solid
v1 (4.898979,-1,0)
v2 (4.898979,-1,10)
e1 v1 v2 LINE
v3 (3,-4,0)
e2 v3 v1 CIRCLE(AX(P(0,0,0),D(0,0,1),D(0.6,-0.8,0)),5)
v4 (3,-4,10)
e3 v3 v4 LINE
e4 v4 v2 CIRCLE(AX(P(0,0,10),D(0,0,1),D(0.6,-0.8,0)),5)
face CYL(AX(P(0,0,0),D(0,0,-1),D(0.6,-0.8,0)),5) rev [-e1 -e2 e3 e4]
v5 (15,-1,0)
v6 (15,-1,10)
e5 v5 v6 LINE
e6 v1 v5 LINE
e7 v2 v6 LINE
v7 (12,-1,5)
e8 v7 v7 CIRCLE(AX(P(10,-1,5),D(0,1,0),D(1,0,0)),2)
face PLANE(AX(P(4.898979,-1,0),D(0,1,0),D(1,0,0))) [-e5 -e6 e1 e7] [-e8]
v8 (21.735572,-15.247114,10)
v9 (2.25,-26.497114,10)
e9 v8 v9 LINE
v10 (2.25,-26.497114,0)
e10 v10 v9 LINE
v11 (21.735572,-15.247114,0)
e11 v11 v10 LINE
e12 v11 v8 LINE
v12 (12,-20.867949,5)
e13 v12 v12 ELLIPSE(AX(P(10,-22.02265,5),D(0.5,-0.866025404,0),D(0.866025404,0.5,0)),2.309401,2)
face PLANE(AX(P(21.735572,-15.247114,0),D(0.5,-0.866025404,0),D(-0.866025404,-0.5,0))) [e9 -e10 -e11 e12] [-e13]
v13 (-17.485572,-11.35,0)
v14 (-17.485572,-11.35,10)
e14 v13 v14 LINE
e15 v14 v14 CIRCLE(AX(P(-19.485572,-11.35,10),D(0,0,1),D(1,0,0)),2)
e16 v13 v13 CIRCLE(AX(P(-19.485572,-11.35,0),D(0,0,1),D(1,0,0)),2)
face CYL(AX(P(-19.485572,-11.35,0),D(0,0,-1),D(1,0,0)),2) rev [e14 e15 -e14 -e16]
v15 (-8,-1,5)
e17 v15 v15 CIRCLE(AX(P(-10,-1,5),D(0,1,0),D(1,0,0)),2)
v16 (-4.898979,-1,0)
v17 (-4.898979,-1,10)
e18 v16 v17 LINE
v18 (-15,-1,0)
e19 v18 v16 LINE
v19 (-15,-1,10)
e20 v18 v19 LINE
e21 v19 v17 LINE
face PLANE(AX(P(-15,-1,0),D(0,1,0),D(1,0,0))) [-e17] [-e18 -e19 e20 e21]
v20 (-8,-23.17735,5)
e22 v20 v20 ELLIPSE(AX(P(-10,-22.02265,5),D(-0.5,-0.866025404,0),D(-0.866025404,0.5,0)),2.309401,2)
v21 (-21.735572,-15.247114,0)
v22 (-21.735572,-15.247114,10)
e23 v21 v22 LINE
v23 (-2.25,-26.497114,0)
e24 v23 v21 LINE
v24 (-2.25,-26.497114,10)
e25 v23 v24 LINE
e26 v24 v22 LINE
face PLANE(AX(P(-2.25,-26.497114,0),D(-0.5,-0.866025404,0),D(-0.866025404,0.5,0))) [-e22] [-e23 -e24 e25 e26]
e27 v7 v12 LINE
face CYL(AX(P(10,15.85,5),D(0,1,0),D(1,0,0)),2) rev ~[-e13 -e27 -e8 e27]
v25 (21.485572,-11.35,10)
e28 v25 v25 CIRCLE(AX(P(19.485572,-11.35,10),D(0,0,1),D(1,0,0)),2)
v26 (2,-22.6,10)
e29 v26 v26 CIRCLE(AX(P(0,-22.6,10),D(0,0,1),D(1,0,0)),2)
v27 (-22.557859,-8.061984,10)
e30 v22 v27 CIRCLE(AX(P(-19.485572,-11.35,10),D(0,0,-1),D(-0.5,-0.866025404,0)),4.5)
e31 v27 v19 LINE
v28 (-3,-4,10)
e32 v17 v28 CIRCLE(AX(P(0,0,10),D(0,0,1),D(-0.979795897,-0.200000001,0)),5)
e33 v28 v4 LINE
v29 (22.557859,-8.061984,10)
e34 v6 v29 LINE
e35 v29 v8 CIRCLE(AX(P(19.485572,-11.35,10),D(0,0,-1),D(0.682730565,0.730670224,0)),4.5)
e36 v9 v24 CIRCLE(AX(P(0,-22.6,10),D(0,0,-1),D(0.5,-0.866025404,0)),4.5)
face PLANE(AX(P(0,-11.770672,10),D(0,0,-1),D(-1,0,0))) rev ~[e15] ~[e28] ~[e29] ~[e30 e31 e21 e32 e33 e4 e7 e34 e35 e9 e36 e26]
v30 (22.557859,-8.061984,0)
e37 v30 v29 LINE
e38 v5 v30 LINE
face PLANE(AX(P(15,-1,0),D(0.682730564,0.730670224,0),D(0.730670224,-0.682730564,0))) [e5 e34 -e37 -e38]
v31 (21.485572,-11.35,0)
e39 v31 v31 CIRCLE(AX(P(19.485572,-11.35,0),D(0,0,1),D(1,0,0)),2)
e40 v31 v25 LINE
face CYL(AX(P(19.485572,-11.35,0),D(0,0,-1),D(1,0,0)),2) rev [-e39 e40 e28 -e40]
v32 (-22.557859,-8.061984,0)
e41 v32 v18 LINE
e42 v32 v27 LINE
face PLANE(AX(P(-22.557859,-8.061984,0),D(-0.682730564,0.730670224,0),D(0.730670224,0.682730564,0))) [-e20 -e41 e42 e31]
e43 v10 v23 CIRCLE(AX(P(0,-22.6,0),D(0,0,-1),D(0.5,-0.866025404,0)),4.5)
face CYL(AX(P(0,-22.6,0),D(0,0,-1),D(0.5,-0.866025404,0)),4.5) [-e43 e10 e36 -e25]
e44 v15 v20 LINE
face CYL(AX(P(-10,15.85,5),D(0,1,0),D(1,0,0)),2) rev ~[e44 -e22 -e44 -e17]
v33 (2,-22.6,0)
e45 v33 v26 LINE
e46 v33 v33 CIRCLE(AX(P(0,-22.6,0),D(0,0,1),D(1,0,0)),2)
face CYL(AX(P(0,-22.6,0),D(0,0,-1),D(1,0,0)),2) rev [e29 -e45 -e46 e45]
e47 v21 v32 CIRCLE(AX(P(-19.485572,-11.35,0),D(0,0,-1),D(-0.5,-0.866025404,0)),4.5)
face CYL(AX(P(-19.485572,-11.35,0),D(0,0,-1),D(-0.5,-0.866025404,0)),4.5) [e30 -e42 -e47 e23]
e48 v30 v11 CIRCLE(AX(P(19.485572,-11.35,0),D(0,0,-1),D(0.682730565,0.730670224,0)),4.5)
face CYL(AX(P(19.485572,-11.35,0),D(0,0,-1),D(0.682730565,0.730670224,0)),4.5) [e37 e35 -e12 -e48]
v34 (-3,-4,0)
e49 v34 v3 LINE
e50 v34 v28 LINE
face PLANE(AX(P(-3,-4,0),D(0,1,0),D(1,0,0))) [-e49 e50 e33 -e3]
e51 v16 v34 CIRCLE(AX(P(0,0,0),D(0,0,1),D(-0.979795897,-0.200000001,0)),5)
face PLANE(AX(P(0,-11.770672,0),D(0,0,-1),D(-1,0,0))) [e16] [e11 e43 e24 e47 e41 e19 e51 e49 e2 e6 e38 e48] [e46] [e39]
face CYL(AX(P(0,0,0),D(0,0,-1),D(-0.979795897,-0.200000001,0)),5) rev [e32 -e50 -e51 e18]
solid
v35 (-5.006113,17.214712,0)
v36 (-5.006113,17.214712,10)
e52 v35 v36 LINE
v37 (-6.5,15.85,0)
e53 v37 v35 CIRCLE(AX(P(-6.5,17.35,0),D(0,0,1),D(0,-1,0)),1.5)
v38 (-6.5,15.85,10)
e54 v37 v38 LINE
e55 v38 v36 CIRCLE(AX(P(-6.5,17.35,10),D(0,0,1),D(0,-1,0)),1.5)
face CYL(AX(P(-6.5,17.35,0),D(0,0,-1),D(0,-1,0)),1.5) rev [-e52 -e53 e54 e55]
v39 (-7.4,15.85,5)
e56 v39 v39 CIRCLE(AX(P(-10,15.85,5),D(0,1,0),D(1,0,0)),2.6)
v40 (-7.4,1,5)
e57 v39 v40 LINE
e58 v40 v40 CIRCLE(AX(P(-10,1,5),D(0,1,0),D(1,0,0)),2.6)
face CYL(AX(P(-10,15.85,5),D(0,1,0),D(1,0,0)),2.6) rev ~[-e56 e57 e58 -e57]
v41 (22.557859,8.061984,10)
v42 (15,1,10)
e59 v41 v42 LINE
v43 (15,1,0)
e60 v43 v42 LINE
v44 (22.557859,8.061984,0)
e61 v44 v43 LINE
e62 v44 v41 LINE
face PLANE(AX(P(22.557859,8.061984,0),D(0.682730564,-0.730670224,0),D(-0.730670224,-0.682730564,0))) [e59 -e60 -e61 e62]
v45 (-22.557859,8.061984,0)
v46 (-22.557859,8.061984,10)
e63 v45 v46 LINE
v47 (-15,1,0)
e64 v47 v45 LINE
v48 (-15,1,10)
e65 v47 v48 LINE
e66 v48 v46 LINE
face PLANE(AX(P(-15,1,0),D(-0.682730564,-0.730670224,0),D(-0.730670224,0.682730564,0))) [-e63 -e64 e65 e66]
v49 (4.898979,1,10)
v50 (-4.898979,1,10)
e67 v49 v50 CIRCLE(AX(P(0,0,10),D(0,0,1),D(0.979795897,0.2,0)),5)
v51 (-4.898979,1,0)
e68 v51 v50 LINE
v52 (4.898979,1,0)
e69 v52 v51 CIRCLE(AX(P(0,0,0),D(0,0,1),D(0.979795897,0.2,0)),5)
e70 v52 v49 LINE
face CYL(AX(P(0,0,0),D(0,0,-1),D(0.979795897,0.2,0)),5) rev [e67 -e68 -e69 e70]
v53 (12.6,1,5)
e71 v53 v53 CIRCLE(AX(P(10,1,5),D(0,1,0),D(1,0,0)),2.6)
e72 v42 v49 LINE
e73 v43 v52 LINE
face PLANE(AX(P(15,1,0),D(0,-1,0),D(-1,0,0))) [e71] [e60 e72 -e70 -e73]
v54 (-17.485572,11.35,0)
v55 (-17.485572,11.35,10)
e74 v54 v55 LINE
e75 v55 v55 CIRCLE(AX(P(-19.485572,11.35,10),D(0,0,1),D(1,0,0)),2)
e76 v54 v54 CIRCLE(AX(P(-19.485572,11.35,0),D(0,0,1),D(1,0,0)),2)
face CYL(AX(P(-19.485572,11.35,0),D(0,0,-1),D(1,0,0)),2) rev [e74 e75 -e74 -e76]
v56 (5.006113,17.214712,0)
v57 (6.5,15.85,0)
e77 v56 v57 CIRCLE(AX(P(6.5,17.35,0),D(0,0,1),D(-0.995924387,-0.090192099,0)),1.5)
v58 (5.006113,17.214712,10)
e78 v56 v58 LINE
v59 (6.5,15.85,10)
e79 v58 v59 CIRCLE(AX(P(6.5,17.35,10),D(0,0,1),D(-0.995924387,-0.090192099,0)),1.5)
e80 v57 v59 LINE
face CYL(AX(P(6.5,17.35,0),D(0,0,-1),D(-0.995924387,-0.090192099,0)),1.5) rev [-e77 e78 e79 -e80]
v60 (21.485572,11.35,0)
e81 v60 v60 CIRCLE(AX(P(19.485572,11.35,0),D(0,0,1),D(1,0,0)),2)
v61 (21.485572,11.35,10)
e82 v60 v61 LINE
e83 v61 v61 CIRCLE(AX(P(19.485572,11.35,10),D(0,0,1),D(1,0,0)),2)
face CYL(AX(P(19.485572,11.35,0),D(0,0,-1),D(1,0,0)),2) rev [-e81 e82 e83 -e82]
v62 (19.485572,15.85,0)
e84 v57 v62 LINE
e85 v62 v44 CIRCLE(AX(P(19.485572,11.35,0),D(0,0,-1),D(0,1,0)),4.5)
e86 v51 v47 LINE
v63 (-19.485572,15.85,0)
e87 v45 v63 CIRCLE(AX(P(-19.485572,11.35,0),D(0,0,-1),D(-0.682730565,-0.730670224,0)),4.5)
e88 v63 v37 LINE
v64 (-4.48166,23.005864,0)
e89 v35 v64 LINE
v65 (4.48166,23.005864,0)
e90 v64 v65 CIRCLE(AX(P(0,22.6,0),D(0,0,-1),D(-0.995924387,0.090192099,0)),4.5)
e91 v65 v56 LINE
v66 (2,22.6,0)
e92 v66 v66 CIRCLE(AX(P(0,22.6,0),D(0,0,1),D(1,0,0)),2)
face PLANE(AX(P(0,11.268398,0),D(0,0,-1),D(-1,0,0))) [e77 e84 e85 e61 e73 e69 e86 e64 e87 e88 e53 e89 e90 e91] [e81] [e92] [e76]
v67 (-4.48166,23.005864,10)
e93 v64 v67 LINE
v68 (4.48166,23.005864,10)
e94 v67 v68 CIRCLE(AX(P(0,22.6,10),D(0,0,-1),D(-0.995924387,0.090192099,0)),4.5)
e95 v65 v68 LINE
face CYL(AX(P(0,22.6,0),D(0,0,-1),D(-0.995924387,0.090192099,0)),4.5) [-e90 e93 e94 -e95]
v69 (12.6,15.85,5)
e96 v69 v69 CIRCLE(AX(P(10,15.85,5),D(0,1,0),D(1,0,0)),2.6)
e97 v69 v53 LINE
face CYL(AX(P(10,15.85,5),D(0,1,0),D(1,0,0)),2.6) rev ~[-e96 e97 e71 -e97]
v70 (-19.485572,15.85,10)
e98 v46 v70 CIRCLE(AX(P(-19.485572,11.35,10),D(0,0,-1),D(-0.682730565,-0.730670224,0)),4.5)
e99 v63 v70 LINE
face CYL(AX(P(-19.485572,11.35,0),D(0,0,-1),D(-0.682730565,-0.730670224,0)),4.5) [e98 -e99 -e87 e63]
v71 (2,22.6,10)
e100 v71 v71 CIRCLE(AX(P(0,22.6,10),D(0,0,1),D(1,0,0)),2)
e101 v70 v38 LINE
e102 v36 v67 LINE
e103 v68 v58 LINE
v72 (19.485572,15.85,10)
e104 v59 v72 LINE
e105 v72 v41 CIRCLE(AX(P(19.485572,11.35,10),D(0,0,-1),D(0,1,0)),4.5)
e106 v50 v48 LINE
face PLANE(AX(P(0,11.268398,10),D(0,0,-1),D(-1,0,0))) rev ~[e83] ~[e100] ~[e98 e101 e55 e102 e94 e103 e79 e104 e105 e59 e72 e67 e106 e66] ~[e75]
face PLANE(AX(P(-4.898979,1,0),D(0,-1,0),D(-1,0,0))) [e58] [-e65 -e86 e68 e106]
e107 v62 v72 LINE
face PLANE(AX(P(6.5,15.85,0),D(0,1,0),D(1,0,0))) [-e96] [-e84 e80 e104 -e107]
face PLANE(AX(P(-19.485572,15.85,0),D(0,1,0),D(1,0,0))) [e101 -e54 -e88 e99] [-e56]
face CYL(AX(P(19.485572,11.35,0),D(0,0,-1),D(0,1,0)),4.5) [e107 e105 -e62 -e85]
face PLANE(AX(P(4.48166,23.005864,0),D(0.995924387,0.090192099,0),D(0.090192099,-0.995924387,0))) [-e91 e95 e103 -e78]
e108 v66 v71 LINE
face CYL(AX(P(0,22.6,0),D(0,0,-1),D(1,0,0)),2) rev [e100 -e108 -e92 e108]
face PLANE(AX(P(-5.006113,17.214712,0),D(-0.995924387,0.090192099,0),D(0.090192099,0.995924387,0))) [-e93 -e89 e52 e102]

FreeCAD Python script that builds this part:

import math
import FreeCAD as App
import Part
import Sketcher
Q = App.Units.Quantity

doc = App.newDocument("Part")
body = doc.addObject("PartDesign::Body", "Body")

# Sketch on XY plane
sketch1 = body.newObject("Sketcher::SketchObject", "Sketch")
sketch1.AttachmentSupport = (doc.getObject("XY_Plane"), [""])
sketch1.MapMode = "FlatFace"
sketch1.addGeometry(Part.LineSegment(App.Vector(3, -4, 0), App.Vector(-3, -4, 0)), False)
sketch1.addGeometry(Part.ArcOfCircle(Part.Circle(App.Vector(0, 0, 0), App.Vector(0, 0, 1), 5), math.radians(-168), math.radians(-127)), False)
sketch1.addGeometry(Part.LineSegment(App.Vector(-4.9, -1, 0), App.Vector(-15, -1, 0)), False)
sketch1.addGeometry(Part.LineSegment(App.Vector(-15, -1, 0), App.Vector(-22.6, -8.1, 0)), False)
sketch1.addGeometry(Part.ArcOfCircle(Part.Circle(App.Vector(-19.5, -11.3, 0), App.Vector(0, 0, 1), 4.5), math.radians(133), math.radians(240)), False)
sketch1.addGeometry(Part.LineSegment(App.Vector(-21.7, -15.2, 0), App.Vector(-2.2, -26.5, 0)), False)
sketch1.addGeometry(Part.ArcOfCircle(Part.Circle(App.Vector(0, -22.6, 0), App.Vector(0, 0, 1), 4.5), math.radians(-120), math.radians(-60)), False)
sketch1.addGeometry(Part.LineSegment(App.Vector(2.2, -26.5, 0), App.Vector(21.7, -15.2, 0)), False)
sketch1.addGeometry(Part.ArcOfCircle(Part.Circle(App.Vector(19.5, -11.3, 0), App.Vector(0, 0, 1), 4.5), math.radians(-60), math.radians(47)), False)
sketch1.addGeometry(Part.LineSegment(App.Vector(22.6, -8.1, 0), App.Vector(15, -1, 0)), False)
sketch1.addGeometry(Part.LineSegment(App.Vector(15, -1, 0), App.Vector(4.9, -1, 0)), False)
sketch1.addGeometry(Part.ArcOfCircle(Part.Circle(App.Vector(0, 0, 0), App.Vector(0, 0, 1), 5), math.radians(-53), math.radians(-12)), False)
sketch1.addGeometry(Part.Circle(App.Vector(0, -22.6, 0), App.Vector(0, 0, 1), 2), False)
sketch1.addGeometry(Part.Circle(App.Vector(19.5, -11.3, 0), App.Vector(0, 0, 1), 2), False)
sketch1.addGeometry(Part.Circle(App.Vector(-19.5, -11.3, 0), App.Vector(0, 0, 1), 2), False)
sketch1.addConstraint(Sketcher.Constraint("Coincident", 0, 2, 1, 2))
sketch1.addConstraint(Sketcher.Constraint("Coincident", 1, 1, 2, 1))
sketch1.addConstraint(Sketcher.Constraint("Coincident", 2, 2, 3, 1))
sketch1.addConstraint(Sketcher.Constraint("Tangent", 3, 2, 4, 1))
sketch1.addConstraint(Sketcher.Constraint("Tangent", 4, 2, 5, 1))
sketch1.addConstraint(Sketcher.Constraint("Tangent", 5, 2, 6, 1))
sketch1.addConstraint(Sketcher.Constraint("Tangent", 6, 2, 7, 1))
sketch1.addConstraint(Sketcher.Constraint("Tangent", 7, 2, 8, 1))
sketch1.addConstraint(Sketcher.Constraint("Tangent", 8, 2, 9, 1))
sketch1.addConstraint(Sketcher.Constraint("Coincident", 9, 2, 10, 1))
sketch1.addConstraint(Sketcher.Constraint("Coincident", 10, 2, 11, 2))
sketch1.addConstraint(Sketcher.Constraint("Coincident", 11, 1, 0, 1))
sketch1.addConstraint(Sketcher.Constraint("Horizontal", 0))
sketch1.addConstraint(Sketcher.Constraint("Horizontal", 2))
sketch1.addConstraint(Sketcher.Constraint("Horizontal", 10))
sketch1.addConstraint(Sketcher.Constraint("Coincident", 1, 3, -1, 1))
sketch1.addConstraint(Sketcher.Constraint("Coincident", 11, 3, -1, 1))
sketch1.addConstraint(Sketcher.Constraint("Coincident", 12, 3, 6, 3))
sketch1.addConstraint(Sketcher.Constraint("Coincident", 13, 3, 8, 3))
sketch1.addConstraint(Sketcher.Constraint("Coincident", 14, 3, 4, 3))
sketch1.addConstraint(Sketcher.Constraint("Equal", 4, 6))
sketch1.addConstraint(Sketcher.Constraint("Equal", 6, 8))
sketch1.addConstraint(Sketcher.Constraint("Equal", 1, 11))
sketch1.addConstraint(Sketcher.Constraint("Equal", 12, 13))
sketch1.addConstraint(Sketcher.Constraint("Equal", 13, 14))
sketch1.addConstraint(Sketcher.Constraint("Symmetric", 4, 3, 8, 3, -2))
sketch1.addConstraint(Sketcher.Constraint("Symmetric", 2, 2, 9, 2, -2))
sketch1.addConstraint(Sketcher.Constraint("PointOnObject", 6, 3, -2))
sketch1.addConstraint(Sketcher.Constraint("Diameter", 12, 4.0))
sketch1.addConstraint(Sketcher.Constraint("Radius", 1, 5.0))
sketch1.addConstraint(Sketcher.Constraint("Radius", 4, 4.5))
sketch1.addConstraint(Sketcher.Constraint("DistanceX", 0, 2, 0, 1, 6.0))
sketch1.addConstraint(Sketcher.Constraint("Angle", 5, Q("-30 deg")))
sketch1.addConstraint(Sketcher.Constraint("DistanceY", 1, 1, -1, 1, 1.0))
sketch1.addConstraint(Sketcher.Constraint("DistanceX", 2, 2, -1, 1, 15.0))
sketch1.addConstraint(Sketcher.Constraint("Distance", 5, 22.5))
sketch1.addConstraint(Sketcher.Constraint("DistanceY", 6, 3, -1, 1, 22.6))
pad1 = body.newObject("PartDesign::Pad", "Pad")
pad1.Profile = sketch1
pad1.Length = 10

# Sketch on XZ plane
sketch2 = body.newObject("Sketcher::SketchObject", "Sketch001")
sketch2.AttachmentSupport = (doc.getObject("XZ_Plane"), [""])
sketch2.MapMode = "FlatFace"
sketch2.AttachmentOffset = App.Placement(App.Vector(0, 0, -15.85), App.Rotation())
sketch2.addGeometry(Part.Circle(App.Vector(-10, 5, 0), App.Vector(0, 0, 1), 2), False)
sketch2.addGeometry(Part.Circle(App.Vector(10, 5, 0), App.Vector(0, 0, 1), 2), False)
sketch2.addConstraint(Sketcher.Constraint("Equal", 0, 1))
sketch2.addConstraint(Sketcher.Constraint("Symmetric", 0, 3, 1, 3, -2))
sketch2.addConstraint(Sketcher.Constraint("Diameter", 0, 4.0))
sketch2.addConstraint(Sketcher.Constraint("DistanceX", 0, 3, -1, 1, 10.0))
sketch2.addConstraint(Sketcher.Constraint("DistanceY", -1, 1, 0, 3, 5.0))
pocket1 = body.newObject("PartDesign::Pocket", "Pocket")
pocket1.Profile = sketch2
pocket1.Type = "ThroughAll"
pocket1.Reversed = True
body2 = doc.addObject("PartDesign::Body", "Body001")

# Sketch on XY plane
sketch3 = body2.newObject("Sketcher::SketchObject", "Sketch002")
sketch3.AttachmentSupport = (doc.getObject("XY_Plane001"), [""])
sketch3.MapMode = "FlatFace"
sketch3.addGeometry(Part.LineSegment(App.Vector(-22.6, 8.1, 0), App.Vector(-15, 1, 0)), False)
sketch3.addGeometry(Part.LineSegment(App.Vector(-15, 1, 0), App.Vector(-4.9, 1, 0)), False)
sketch3.addGeometry(Part.ArcOfCircle(Part.Circle(App.Vector(0, 0, 0), App.Vector(0, 0, 1), 5), math.radians(12), math.radians(168)), False)
sketch3.addGeometry(Part.LineSegment(App.Vector(4.9, 1, 0), App.Vector(15, 1, 0)), False)
sketch3.addGeometry(Part.LineSegment(App.Vector(15, 1, 0), App.Vector(22.6, 8.1, 0)), False)
sketch3.addGeometry(Part.ArcOfCircle(Part.Circle(App.Vector(19.5, 11.3, 0), App.Vector(0, 0, 1), 4.5), math.radians(-47), math.radians(90)), False)
sketch3.addGeometry(Part.LineSegment(App.Vector(19.5, 15.8, 0), App.Vector(6.5, 15.8, 0)), False)
sketch3.addGeometry(Part.ArcOfCircle(Part.Circle(App.Vector(6.5, 17.4, 0), App.Vector(0, 0, 1), 1.5), math.radians(-175), math.radians(-90)), False)
sketch3.addGeometry(Part.LineSegment(App.Vector(5, 17.2, 0), App.Vector(4.5, 23, 0)), False)
sketch3.addGeometry(Part.ArcOfCircle(Part.Circle(App.Vector(0, 22.6, 0), App.Vector(0, 0, 1), 4.5), math.radians(5), math.radians(175)), False)
sketch3.addGeometry(Part.LineSegment(App.Vector(-4.5, 23, 0), App.Vector(-5, 17.2, 0)), False)
sketch3.addGeometry(Part.ArcOfCircle(Part.Circle(App.Vector(-6.5, 17.4, 0), App.Vector(0, 0, 1), 1.5), math.radians(-90), math.radians(-5)), False)
sketch3.addGeometry(Part.LineSegment(App.Vector(-6.5, 15.8, 0), App.Vector(-19.5, 15.8, 0)), False)
sketch3.addGeometry(Part.ArcOfCircle(Part.Circle(App.Vector(-19.5, 11.3, 0), App.Vector(0, 0, 1), 4.5), math.radians(90), math.radians(227)), False)
sketch3.addGeometry(Part.Circle(App.Vector(19.5, 11.3, 0), App.Vector(0, 0, 1), 2), False)
sketch3.addGeometry(Part.Circle(App.Vector(-19.5, 11.3, 0), App.Vector(0, 0, 1), 2), False)
sketch3.addGeometry(Part.Circle(App.Vector(0, 22.6, 0), App.Vector(0, 0, 1), 2), False)
sketch3.addConstraint(Sketcher.Constraint("Coincident", 0, 2, 1, 1))
sketch3.addConstraint(Sketcher.Constraint("Coincident", 1, 2, 2, 2))
sketch3.addConstraint(Sketcher.Constraint("Coincident", 2, 1, 3, 1))
sketch3.addConstraint(Sketcher.Constraint("Coincident", 3, 2, 4, 1))
sketch3.addConstraint(Sketcher.Constraint("Tangent", 4, 2, 5, 1))
sketch3.addConstraint(Sketcher.Constraint("Tangent", 5, 2, 6, 1))
sketch3.addConstraint(Sketcher.Constraint("Tangent", 6, 2, 7, 2))
sketch3.addConstraint(Sketcher.Constraint("Tangent", 7, 1, 8, 1))
sketch3.addConstraint(Sketcher.Constraint("Tangent", 8, 2, 9, 1))
sketch3.addConstraint(Sketcher.Constraint("Tangent", 9, 2, 10, 1))
sketch3.addConstraint(Sketcher.Constraint("Tangent", 10, 2, 11, 2))
sketch3.addConstraint(Sketcher.Constraint("Tangent", 11, 1, 12, 1))
sketch3.addConstraint(Sketcher.Constraint("Tangent", 12, 2, 13, 1))
sketch3.addConstraint(Sketcher.Constraint("Tangent", 13, 2, 0, 1))
sketch3.addConstraint(Sketcher.Constraint("Horizontal", 1))
sketch3.addConstraint(Sketcher.Constraint("Horizontal", 3))
sketch3.addConstraint(Sketcher.Constraint("Horizontal", 6))
sketch3.addConstraint(Sketcher.Constraint("Horizontal", 12))
sketch3.addConstraint(Sketcher.Constraint("Coincident", 2, 3, -1, 1))
sketch3.addConstraint(Sketcher.Constraint("Coincident", 14, 3, 5, 3))
sketch3.addConstraint(Sketcher.Constraint("Coincident", 15, 3, 13, 3))
sketch3.addConstraint(Sketcher.Constraint("Coincident", 16, 3, 9, 3))
sketch3.addConstraint(Sketcher.Constraint("Equal", 5, 9))
sketch3.addConstraint(Sketcher.Constraint("Equal", 7, 11))
sketch3.addConstraint(Sketcher.Constraint("Equal", 9, 13))
sketch3.addConstraint(Sketcher.Constraint("Equal", 14, 15))
sketch3.addConstraint(Sketcher.Constraint("Equal", 15, 16))
sketch3.addConstraint(Sketcher.Constraint("Symmetric", 7, 3, 11, 3, -2))
sketch3.addConstraint(Sketcher.Constraint("Symmetric", 0, 2, 3, 2, -2))
sketch3.addConstraint(Sketcher.Constraint("PointOnObject", 9, 3, -2))
sketch3.addConstraint(Sketcher.Constraint("Horizontal", 4, 2, 13, 2))
sketch3.addConstraint(Sketcher.Constraint("Diameter", 14, 4.0))
sketch3.addConstraint(Sketcher.Constraint("Radius", 2, 5.0))
sketch3.addConstraint(Sketcher.Constraint("Radius", 5, 4.5))
sketch3.addConstraint(Sketcher.Constraint("Radius", 7, 1.5))
sketch3.addConstraint(Sketcher.Constraint("DistanceX", 0, 2, -1, 1, 15.0))
sketch3.addConstraint(Sketcher.Constraint("DistanceY", -1, 1, 0, 2, 1.0))
sketch3.addConstraint(Sketcher.Constraint("DistanceX", 11, 3, 7, 3, 13.0))
sketch3.addConstraint(Sketcher.Constraint("DistanceY", -1, 1, 9, 3, 22.6))
sketch3.addConstraint(Sketcher.Constraint("DistanceY", -1, 1, 5, 3, 11.35))
sketch3.addConstraint(Sketcher.Constraint("DistanceX", 6, 2, 6, 1, 12.985572))
pad2 = body2.newObject("PartDesign::Pad", "Pad001")
pad2.Profile = sketch3
pad2.Length = 10

# Sketch on XZ plane
sketch4 = body2.newObject("Sketcher::SketchObject", "Sketch003")
sketch4.AttachmentSupport = (doc.getObject("XZ_Plane001"), [""])
sketch4.MapMode = "FlatFace"
sketch4.AttachmentOffset = App.Placement(App.Vector(0, 0, -15.85), App.Rotation())
sketch4.addGeometry(Part.Circle(App.Vector(-10, 5, 0), App.Vector(0, 0, 1), 2.6), False)
sketch4.addGeometry(Part.Circle(App.Vector(10, 5, 0), App.Vector(0, 0, 1), 2.6), False)
sketch4.addConstraint(Sketcher.Constraint("Equal", 0, 1))
sketch4.addConstraint(Sketcher.Constraint("Symmetric", 0, 3, 1, 3, -2))
sketch4.addConstraint(Sketcher.Constraint("Diameter", 0, 5.2))
sketch4.addConstraint(Sketcher.Constraint("DistanceX", 0, 3, -1, 1, 10.0))
sketch4.addConstraint(Sketcher.Constraint("DistanceY", -1, 1, 0, 3, 5.0))
pocket2 = body2.newObject("PartDesign::Pocket", "Pocket001")
pocket2.Profile = sketch4
pocket2.Length = 14.85
pocket2.Reversed = True

doc.recompute()
